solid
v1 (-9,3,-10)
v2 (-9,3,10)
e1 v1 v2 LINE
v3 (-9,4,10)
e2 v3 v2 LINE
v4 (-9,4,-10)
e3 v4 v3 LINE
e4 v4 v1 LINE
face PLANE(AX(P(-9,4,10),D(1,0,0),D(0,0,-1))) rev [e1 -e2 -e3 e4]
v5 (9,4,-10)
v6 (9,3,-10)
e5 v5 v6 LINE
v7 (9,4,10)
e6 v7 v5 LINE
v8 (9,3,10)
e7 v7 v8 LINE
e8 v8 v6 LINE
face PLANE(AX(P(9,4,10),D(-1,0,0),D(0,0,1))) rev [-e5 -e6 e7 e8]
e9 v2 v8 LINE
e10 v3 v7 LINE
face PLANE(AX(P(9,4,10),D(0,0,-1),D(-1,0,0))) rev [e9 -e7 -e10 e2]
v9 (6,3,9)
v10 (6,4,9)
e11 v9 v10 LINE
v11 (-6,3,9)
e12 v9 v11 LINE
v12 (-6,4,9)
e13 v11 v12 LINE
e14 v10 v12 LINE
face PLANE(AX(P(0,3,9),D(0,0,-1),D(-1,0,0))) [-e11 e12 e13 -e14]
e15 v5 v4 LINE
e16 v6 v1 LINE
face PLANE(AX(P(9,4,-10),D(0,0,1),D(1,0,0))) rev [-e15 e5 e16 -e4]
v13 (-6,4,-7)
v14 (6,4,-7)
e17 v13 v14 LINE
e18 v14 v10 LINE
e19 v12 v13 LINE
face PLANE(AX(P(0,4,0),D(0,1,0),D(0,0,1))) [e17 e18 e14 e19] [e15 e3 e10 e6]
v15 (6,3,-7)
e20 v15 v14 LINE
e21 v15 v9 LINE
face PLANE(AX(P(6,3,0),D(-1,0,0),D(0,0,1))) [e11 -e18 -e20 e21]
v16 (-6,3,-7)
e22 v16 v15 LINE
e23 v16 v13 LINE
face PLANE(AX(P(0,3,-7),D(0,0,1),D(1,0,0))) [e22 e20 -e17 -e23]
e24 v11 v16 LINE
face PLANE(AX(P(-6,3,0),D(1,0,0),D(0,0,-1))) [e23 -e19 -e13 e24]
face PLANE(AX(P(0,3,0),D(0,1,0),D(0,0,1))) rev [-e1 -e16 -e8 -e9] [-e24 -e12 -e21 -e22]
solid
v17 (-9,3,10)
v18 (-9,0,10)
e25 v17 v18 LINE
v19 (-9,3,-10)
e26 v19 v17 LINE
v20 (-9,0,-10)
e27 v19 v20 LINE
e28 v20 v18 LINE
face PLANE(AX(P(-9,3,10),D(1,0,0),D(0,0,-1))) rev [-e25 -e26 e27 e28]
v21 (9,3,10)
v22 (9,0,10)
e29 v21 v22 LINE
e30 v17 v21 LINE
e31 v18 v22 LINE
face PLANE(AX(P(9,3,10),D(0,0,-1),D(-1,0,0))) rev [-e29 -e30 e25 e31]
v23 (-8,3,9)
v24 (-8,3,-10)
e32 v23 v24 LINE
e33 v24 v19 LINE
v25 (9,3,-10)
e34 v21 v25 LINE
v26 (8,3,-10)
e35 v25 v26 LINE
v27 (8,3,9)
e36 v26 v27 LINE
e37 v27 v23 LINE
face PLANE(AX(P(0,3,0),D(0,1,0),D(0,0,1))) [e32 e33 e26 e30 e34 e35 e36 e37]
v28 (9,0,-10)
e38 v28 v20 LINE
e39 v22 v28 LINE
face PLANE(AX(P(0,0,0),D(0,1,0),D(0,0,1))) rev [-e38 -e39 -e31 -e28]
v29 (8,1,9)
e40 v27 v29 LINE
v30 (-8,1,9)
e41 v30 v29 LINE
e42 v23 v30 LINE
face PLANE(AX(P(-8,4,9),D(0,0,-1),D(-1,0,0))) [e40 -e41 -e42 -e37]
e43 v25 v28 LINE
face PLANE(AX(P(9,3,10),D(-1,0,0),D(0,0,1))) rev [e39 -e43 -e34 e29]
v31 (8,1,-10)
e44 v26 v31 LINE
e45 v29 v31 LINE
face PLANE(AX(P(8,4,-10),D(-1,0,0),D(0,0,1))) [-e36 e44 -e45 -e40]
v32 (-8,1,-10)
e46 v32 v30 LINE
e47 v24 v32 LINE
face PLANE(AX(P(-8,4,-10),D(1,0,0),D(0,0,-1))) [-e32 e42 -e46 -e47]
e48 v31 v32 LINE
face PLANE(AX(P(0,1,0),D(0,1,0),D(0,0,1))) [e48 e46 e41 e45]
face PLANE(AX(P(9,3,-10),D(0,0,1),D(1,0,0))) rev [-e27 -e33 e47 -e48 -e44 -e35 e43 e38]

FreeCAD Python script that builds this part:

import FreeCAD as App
import Part
import Sketcher
from FreeCAD import Vector
Q = App.Units.Quantity

doc = App.newDocument("Part")
body = doc.addObject("PartDesign::Body", "Body")

sketch1 = body.newObject("Sketcher::SketchObject", "Sketch")
sketch1.AttachmentSupport = (doc.getObject("XZ_Plane"), [""])
sketch1.MapMode = "FlatFace"
sketch1.addGeometry(Part.LineSegment(Vector(-9, -10, 0), Vector(-9, 10, 0)), False)
sketch1.addGeometry(Part.LineSegment(Vector(-9, 10, 0), Vector(9, 10, 0)), False)
sketch1.addGeometry(Part.LineSegment(Vector(9, 10, 0), Vector(9, -10, 0)), False)
sketch1.addGeometry(Part.LineSegment(Vector(9, -10, 0), Vector(-9, -10, 0)), False)
sketch1.addConstraint(Sketcher.Constraint("Coincident", 0, 2, 1, 1))
sketch1.addConstraint(Sketcher.Constraint("Coincident", 1, 2, 2, 1))
sketch1.addConstraint(Sketcher.Constraint("Coincident", 2, 2, 3, 1))
sketch1.addConstraint(Sketcher.Constraint("Coincident", 3, 2, 0, 1))
sketch1.addConstraint(Sketcher.Constraint("Vertical", 0))
sketch1.addConstraint(Sketcher.Constraint("Horizontal", 1))
sketch1.addConstraint(Sketcher.Constraint("Vertical", 2))
sketch1.addConstraint(Sketcher.Constraint("Horizontal", 3))
sketch1.addConstraint(Sketcher.Constraint("Symmetric", 0, 2, 2, 2, -1, 1))
sketch1.addConstraint(Sketcher.Constraint("DistanceX", 1, 1, 1, 2, Q("18 mm")))
sketch1.addConstraint(Sketcher.Constraint("DistanceY", 0, 1, 0, 2, Q("20 mm")))
pad1 = body.newObject("PartDesign::Pad", "Pad")
pad1.Profile = sketch1
pad1.Length = 3
pad1.Reversed = True

sketch2 = body.newObject("Sketcher::SketchObject", "Sketch001")
sketch2.AttachmentSupport = (doc.getObject("XZ_Plane"), [""])
sketch2.MapMode = "FlatFace"
sketch2.AttachmentOffset = App.Placement(Vector(0, 0, -1), App.Rotation())
sketch2.addGeometry(Part.LineSegment(Vector(-8, -10, 0), Vector(-8, 9, 0)), False)
sketch2.addGeometry(Part.LineSegment(Vector(-8, 9, 0), Vector(8, 9, 0)), False)
sketch2.addGeometry(Part.LineSegment(Vector(8, 9, 0), Vector(8, -10, 0)), False)
sketch2.addGeometry(Part.LineSegment(Vector(8, -10, 0), Vector(-8, -10, 0)), False)
sketch2.addConstraint(Sketcher.Constraint("Coincident", 0, 2, 1, 1))
sketch2.addConstraint(Sketcher.Constraint("Coincident", 1, 2, 2, 1))
sketch2.addConstraint(Sketcher.Constraint("Coincident", 2, 2, 3, 1))
sketch2.addConstraint(Sketcher.Constraint("Coincident", 3, 2, 0, 1))
sketch2.addConstraint(Sketcher.Constraint("Vertical", 0))
sketch2.addConstraint(Sketcher.Constraint("Horizontal", 1))
sketch2.addConstraint(Sketcher.Constraint("Vertical", 2))
sketch2.addConstraint(Sketcher.Constraint("Horizontal", 3))
sketch2.addConstraint(Sketcher.Constraint("DistanceX", 1, 1, 1, 2, Q("16 mm")))
sketch2.addConstraint(Sketcher.Constraint("DistanceY", 0, 1, 0, 2, Q("19 mm")))
sketch2.addConstraint(Sketcher.Constraint("DistanceX", 0, 2, -1, 1, Q("8 mm")))
sketch2.addConstraint(Sketcher.Constraint("DistanceY", -1, 1, 0, 2, Q("9 mm")))
pocket1 = body.newObject("PartDesign::Pocket", "Pocket")
pocket1.Profile = sketch2
pocket1.Length = 3
body2 = doc.addObject("PartDesign::Body", "Body001")

sketch3 = body2.newObject("Sketcher::SketchObject", "Sketch002")
sketch3.AttachmentSupport = (doc.getObject("XZ_Plane001"), [""])
sketch3.MapMode = "FlatFace"
sketch3.AttachmentOffset = App.Placement(Vector(0, 0, -3), App.Rotation())
sketch3.addGeometry(Part.LineSegment(Vector(-9, -10, 0), Vector(-9, 10, 0)), False)
sketch3.addGeometry(Part.LineSegment(Vector(-9, 10, 0), Vector(9, 10, 0)), False)
sketch3.addGeometry(Part.LineSegment(Vector(9, 10, 0), Vector(9, -10, 0)), False)
sketch3.addGeometry(Part.LineSegment(Vector(9, -10, 0), Vector(-9, -10, 0)), False)
sketch3.addConstraint(Sketcher.Constraint("Coincident", 0, 2, 1, 1))
sketch3.addConstraint(Sketcher.Constraint("Coincident", 1, 2, 2, 1))
sketch3.addConstraint(Sketcher.Constraint("Coincident", 2, 2, 3, 1))
sketch3.addConstraint(Sketcher.Constraint("Coincident", 3, 2, 0, 1))
sketch3.addConstraint(Sketcher.Constraint("Vertical", 0))
sketch3.addConstraint(Sketcher.Constraint("Horizontal", 1))
sketch3.addConstraint(Sketcher.Constraint("Vertical", 2))
sketch3.addConstraint(Sketcher.Constraint("Horizontal", 3))
sketch3.addConstraint(Sketcher.Constraint("Symmetric", 0, 2, 2, 2, -1, 1))
sketch3.addConstraint(Sketcher.Constraint("DistanceX", 1, 1, 1, 2, Q("18 mm")))
sketch3.addConstraint(Sketcher.Constraint("DistanceY", 0, 1, 0, 2, Q("20 mm")))
pad2 = body2.newObject("PartDesign::Pad", "Pad001")
pad2.Profile = sketch3
pad2.Length = 1
pad2.Reversed = True

sketch4 = body2.newObject("Sketcher::SketchObject", "Sketch003")
sketch4.AttachmentSupport = (doc.getObject("XZ_Plane001"), [""])
sketch4.MapMode = "FlatFace"
sketch4.AttachmentOffset = App.Placement(Vector(0, 0, -4), App.Rotation())
sketch4.addGeometry(Part.LineSegment(Vector(-6, -7, 0), Vector(-6, 9, 0)), False)
sketch4.addGeometry(Part.LineSegment(Vector(-6, 9, 0), Vector(6, 9, 0)), False)
sketch4.addGeometry(Part.LineSegment(Vector(6, 9, 0), Vector(6, -7, 0)), False)
sketch4.addGeometry(Part.LineSegment(Vector(6, -7, 0), Vector(-6, -7, 0)), False)
sketch4.addConstraint(Sketcher.Constraint("Coincident", 0, 2, 1, 1))
sketch4.addConstraint(Sketcher.Constraint("Coincident", 1, 2, 2, 1))
sketch4.addConstraint(Sketcher.Constraint("Coincident", 2, 2, 3, 1))
sketch4.addConstraint(Sketcher.Constraint("Coincident", 3, 2, 0, 1))
sketch4.addConstraint(Sketcher.Constraint("Vertical", 0))
sketch4.addConstraint(Sketcher.Constraint("Horizontal", 1))
sketch4.addConstraint(Sketcher.Constraint("Vertical", 2))
sketch4.addConstraint(Sketcher.Constraint("Horizontal", 3))
sketch4.addConstraint(Sketcher.Constraint("DistanceX", 1, 1, 1, 2, Q("12 mm")))
sketch4.addConstraint(Sketcher.Constraint("DistanceY", 0, 1, 0, 2, Q("16 mm")))
sketch4.addConstraint(Sketcher.Constraint("DistanceX", 0, 2, -1, 1, Q("6 mm")))
sketch4.addConstraint(Sketcher.Constraint("DistanceY", -1, 1, 0, 2, Q("9 mm")))
pocket2 = body2.newObject("PartDesign::Pocket", "Pocket001")
pocket2.Profile = sketch4
pocket2.Length = 1
pocket2.Reversed = True

doc.recompute()
